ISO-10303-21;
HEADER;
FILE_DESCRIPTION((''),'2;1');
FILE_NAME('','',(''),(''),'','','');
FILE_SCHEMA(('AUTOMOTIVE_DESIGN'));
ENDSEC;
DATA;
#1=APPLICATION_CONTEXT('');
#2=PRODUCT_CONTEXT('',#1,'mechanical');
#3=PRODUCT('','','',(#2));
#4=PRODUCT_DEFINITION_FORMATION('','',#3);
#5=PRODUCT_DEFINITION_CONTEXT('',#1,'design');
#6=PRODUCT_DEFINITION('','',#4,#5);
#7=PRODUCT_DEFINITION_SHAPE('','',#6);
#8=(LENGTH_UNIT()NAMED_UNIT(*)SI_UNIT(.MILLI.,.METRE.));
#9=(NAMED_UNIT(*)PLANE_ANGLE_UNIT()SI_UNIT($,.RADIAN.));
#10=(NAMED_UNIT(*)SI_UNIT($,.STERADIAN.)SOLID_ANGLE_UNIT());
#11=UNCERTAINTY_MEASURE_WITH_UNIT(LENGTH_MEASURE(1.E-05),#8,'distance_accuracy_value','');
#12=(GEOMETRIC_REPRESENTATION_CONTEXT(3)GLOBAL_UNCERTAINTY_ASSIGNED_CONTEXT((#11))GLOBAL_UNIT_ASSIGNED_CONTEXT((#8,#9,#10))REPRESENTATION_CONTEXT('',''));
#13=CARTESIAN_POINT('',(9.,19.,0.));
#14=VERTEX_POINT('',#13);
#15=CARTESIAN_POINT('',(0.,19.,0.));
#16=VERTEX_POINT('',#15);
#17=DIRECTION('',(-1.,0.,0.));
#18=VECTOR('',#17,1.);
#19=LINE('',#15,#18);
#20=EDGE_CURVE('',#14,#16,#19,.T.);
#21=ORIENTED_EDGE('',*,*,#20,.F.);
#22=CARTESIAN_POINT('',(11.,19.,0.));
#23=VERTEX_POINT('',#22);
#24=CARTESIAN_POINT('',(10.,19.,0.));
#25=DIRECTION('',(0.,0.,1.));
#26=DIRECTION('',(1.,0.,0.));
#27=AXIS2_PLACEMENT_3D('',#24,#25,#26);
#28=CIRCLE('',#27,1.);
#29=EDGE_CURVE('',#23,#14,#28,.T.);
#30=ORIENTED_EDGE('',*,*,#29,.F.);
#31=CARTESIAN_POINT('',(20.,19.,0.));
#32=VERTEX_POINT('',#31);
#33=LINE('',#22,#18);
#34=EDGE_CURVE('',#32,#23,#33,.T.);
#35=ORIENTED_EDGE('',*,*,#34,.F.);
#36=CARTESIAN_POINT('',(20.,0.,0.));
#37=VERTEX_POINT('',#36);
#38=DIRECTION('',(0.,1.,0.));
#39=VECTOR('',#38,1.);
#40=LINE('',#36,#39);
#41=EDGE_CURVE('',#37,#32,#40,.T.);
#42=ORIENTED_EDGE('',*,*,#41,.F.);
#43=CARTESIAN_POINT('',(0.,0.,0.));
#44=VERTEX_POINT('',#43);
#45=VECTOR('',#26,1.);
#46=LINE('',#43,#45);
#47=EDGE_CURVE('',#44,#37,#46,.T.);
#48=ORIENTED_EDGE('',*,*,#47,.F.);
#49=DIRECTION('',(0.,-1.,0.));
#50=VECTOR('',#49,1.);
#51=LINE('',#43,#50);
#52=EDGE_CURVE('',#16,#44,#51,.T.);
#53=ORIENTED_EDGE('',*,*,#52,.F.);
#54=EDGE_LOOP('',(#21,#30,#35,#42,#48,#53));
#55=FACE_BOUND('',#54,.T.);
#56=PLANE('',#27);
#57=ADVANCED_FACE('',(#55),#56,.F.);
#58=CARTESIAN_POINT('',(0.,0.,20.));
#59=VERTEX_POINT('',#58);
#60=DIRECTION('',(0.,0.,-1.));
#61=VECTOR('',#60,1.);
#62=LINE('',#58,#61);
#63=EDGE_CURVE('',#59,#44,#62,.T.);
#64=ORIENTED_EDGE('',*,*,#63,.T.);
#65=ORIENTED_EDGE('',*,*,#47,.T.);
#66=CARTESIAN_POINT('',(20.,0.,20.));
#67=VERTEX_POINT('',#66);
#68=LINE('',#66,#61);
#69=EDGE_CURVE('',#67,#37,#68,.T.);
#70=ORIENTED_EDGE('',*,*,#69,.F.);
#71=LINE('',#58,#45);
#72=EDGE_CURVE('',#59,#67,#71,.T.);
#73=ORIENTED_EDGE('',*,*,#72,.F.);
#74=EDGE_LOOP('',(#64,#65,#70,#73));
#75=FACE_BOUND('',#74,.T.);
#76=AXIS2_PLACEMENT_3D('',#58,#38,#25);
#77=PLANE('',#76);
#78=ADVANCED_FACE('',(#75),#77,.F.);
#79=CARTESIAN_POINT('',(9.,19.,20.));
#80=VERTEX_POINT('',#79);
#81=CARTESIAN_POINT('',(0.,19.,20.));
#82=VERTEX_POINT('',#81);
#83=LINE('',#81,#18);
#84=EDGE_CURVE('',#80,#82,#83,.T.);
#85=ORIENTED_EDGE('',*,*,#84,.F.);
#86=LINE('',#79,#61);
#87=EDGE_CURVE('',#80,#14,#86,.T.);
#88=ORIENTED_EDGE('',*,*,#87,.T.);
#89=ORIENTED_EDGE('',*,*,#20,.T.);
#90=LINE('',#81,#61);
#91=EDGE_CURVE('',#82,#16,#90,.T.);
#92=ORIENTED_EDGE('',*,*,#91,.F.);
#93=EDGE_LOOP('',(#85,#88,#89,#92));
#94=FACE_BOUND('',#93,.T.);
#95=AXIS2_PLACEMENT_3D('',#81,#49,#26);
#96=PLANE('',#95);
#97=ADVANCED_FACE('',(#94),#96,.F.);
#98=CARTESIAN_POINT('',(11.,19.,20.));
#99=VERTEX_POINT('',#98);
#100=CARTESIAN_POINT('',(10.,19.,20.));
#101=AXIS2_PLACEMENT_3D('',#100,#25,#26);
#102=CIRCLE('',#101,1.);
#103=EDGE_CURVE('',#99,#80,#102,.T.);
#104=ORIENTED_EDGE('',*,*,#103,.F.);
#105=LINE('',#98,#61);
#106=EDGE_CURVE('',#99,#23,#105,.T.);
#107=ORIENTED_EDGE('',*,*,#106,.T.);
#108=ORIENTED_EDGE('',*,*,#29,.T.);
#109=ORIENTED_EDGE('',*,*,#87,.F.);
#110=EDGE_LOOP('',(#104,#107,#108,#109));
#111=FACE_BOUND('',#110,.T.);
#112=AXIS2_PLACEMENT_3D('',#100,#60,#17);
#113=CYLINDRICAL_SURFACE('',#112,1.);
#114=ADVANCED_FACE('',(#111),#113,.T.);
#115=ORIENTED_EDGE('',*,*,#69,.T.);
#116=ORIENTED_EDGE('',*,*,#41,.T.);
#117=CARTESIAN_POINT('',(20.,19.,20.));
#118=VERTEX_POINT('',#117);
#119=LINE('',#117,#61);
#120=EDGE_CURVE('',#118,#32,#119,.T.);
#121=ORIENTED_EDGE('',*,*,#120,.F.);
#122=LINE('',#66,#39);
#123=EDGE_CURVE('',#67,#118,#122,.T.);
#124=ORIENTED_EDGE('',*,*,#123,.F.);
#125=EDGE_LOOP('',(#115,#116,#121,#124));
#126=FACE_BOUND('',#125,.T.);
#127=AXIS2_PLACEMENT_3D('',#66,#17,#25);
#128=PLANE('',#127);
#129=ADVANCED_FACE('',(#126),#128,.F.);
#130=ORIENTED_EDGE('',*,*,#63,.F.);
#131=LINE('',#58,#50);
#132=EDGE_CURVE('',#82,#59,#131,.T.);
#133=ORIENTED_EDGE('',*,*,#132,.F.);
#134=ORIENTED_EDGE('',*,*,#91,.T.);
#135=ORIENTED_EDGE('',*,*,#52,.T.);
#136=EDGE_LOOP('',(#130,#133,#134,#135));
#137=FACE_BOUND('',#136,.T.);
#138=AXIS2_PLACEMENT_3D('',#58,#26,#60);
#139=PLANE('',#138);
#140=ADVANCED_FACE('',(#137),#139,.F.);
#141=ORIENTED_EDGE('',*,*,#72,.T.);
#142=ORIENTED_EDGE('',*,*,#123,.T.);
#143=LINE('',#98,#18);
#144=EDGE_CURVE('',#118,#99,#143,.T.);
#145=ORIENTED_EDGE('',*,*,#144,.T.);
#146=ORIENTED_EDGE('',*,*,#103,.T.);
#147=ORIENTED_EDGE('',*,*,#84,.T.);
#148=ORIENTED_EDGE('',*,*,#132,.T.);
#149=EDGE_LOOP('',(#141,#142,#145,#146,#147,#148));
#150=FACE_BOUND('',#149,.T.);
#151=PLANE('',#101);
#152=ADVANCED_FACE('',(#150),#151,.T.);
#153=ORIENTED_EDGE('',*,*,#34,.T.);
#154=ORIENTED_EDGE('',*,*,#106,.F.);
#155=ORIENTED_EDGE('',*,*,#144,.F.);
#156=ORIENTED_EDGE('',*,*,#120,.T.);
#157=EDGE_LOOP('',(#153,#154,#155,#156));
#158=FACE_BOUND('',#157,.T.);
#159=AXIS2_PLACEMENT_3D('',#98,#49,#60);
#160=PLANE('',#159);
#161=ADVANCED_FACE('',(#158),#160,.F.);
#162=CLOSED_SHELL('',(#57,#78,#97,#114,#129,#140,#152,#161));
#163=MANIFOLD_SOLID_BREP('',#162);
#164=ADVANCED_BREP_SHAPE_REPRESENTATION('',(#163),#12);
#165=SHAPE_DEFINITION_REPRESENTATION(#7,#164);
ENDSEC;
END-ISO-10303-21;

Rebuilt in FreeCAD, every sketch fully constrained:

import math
import FreeCAD as App
import Part
import Sketcher

V = App.Vector
Q = App.Units.Quantity

doc = App.newDocument("Part")
body = doc.addObject("PartDesign::Body", "Body")

sketch1 = doc.addObject("Sketcher::SketchObject", "Sketch")
body.addObject(sketch1)
sketch1.AttachmentSupport = (doc.XY_Plane, [""])
sketch1.MapMode = "FlatFace"
sketch1.addGeometry([
    Part.LineSegment(V(20, 19, 0), V(11, 19, 0)),
    Part.ArcOfCircle(Part.Circle(V(10, 19, 0), V(0, 0, 1), 1), math.radians(0), math.radians(180)),
    Part.LineSegment(V(9, 19, 0), V(0, 19, 0)),
    Part.LineSegment(V(0, 19, 0), V(0, 0, 0)),
    Part.LineSegment(V(0, 0, 0), V(20, 0, 0)),
    Part.LineSegment(V(20, 0, 0), V(20, 19, 0)),
], False)
sketch1.addConstraint([
    Sketcher.Constraint("Coincident", 0, 2, 1, 1),
    Sketcher.Constraint("Coincident", 1, 2, 2, 1),
    Sketcher.Constraint("Coincident", 2, 2, 3, 1),
    Sketcher.Constraint("Coincident", 3, 2, 4, 1),
    Sketcher.Constraint("Coincident", 4, 2, 5, 1),
    Sketcher.Constraint("Coincident", 5, 2, 0, 1),
    Sketcher.Constraint("Horizontal", 0),
    Sketcher.Constraint("Horizontal", 2),
    Sketcher.Constraint("Vertical", 3),
    Sketcher.Constraint("Horizontal", 4),
    Sketcher.Constraint("Vertical", 5),
    Sketcher.Constraint("Coincident", 3, 2, -1, 1),
    Sketcher.Constraint("Horizontal", 1, 3, 0, 2),
    Sketcher.Constraint("Horizontal", 0, 2, 1, 2),
    Sketcher.Constraint("Equal", 0, 2),
    Sketcher.Constraint("Radius", 1, Q("1 mm")),
    Sketcher.Constraint("DistanceX", 0, 2, 0, 1, Q("9 mm")),
    Sketcher.Constraint("DistanceY", 3, 2, 3, 1, Q("19 mm")),
])
pad1 = doc.addObject("PartDesign::Pad", "Pad")
body.addObject(pad1)
pad1.Profile = sketch1
pad1.Length = 20

doc.recompute()
